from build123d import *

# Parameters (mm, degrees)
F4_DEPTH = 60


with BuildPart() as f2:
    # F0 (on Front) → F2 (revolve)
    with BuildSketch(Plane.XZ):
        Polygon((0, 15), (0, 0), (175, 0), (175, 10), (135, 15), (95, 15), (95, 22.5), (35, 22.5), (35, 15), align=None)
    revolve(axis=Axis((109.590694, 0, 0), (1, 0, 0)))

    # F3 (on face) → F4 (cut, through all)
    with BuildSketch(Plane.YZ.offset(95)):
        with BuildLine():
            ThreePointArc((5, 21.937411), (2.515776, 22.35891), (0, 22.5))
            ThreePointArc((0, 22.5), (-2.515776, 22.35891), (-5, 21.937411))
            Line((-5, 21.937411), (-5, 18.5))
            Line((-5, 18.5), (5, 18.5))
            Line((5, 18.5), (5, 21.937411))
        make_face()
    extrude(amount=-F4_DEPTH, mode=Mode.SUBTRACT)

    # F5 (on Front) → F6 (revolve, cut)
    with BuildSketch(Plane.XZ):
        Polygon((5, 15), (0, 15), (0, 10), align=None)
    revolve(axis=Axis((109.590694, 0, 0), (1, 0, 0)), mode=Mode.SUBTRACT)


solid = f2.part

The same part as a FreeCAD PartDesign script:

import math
import FreeCAD as App
import Part
import Sketcher
Q = App.Units.Quantity


def add_polygon(sketch, points):
    """Adds a closed chain of lines whose ends are joined by coincident constraints."""
    first, n = sketch.GeometryCount, len(points)
    for a, b in zip(points, points[1:] + points[:1]):
        sketch.addGeometry(Part.LineSegment(App.Vector(*a, 0), App.Vector(*b, 0)), False)
    for i in range(n):
        sketch.addConstraint(Sketcher.Constraint("Coincident", first + i, 2, first + (i + 1) % n, 1))

doc = App.newDocument("Part")
body = doc.addObject("PartDesign::Body", "Body")

# Sketch on XZ plane
sketch1 = doc.addObject("Sketcher::SketchObject", "Sketch")
body.addObject(sketch1)
sketch1.AttachmentSupport = (doc.XZ_Plane, [""])
sketch1.MapMode = "FlatFace"
add_polygon(sketch1, [(0, 15), (0, 0), (175, 0), (175, 10), (135, 15), (95, 15), (95, 22), (35, 22), (35, 15)])  # lines 0-8
sketch1.addConstraint(Sketcher.Constraint("Vertical", 0))
sketch1.addConstraint(Sketcher.Constraint("Horizontal", 1))
sketch1.addConstraint(Sketcher.Constraint("Vertical", 2))
sketch1.addConstraint(Sketcher.Constraint("Horizontal", 4))
sketch1.addConstraint(Sketcher.Constraint("Vertical", 5))
sketch1.addConstraint(Sketcher.Constraint("Horizontal", 6))
sketch1.addConstraint(Sketcher.Constraint("Vertical", 7))
sketch1.addConstraint(Sketcher.Constraint("Horizontal", 8))
sketch1.addConstraint(Sketcher.Constraint("Coincident", 0, 2, -1, 1))
sketch1.addConstraint(Sketcher.Constraint("Horizontal", 4, 2, 7, 2))
sketch1.addConstraint(Sketcher.Constraint("DistanceX", 1, 1, 1, 2, Q("175 mm")))
sketch1.addConstraint(Sketcher.Constraint("DistanceX", 4, 2, 4, 1, Q("40 mm")))
sketch1.addConstraint(Sketcher.Constraint("DistanceX", 6, 2, 6, 1, Q("60 mm")))
sketch1.addConstraint(Sketcher.Constraint("DistanceX", 8, 2, 8, 1, Q("35 mm")))
sketch1.addConstraint(Sketcher.Constraint("DistanceY", 0, 2, 0, 1, Q("15 mm")))
sketch1.addConstraint(Sketcher.Constraint("DistanceY", 2, 1, 2, 2, Q("10 mm")))
sketch1.addConstraint(Sketcher.Constraint("DistanceY", 5, 1, 5, 2, Q("7.5 mm")))
revolution = doc.addObject("PartDesign::Revolution", "Revolution")
body.addObject(revolution)
revolution.Profile = sketch1
revolution.ReferenceAxis = (sketch1, ["H_Axis"])
revolution.Angle = 360

# Sketch on YZ plane
sketch2 = doc.addObject("Sketcher::SketchObject", "Sketch001")
body.addObject(sketch2)
sketch2.AttachmentSupport = (doc.YZ_Plane, [""])
sketch2.MapMode = "FlatFace"
sketch2.AttachmentOffset = App.Placement(App.Vector(0, 0, 95), App.Rotation())
sketch2.addGeometry(Part.ArcOfCircle(Part.Circle(App.Vector(0, 0, 0), App.Vector(0, 0, 1), 22.5), math.radians(77.16), math.radians(90)), False)
sketch2.addGeometry(Part.ArcOfCircle(Part.Circle(App.Vector(0, 0, 0), App.Vector(0, 0, 1), 22.5), math.radians(90), math.radians(102.84)), False)
sketch2.addGeometry(Part.LineSegment(App.Vector(-5, 21.9, 0), App.Vector(-5, 18.5, 0)), False)
sketch2.addGeometry(Part.LineSegment(App.Vector(-5, 18.5, 0), App.Vector(5, 18.5, 0)), False)
sketch2.addGeometry(Part.LineSegment(App.Vector(5, 18.5, 0), App.Vector(5, 21.9, 0)), False)
sketch2.addConstraint(Sketcher.Constraint("Tangent", 0, 2, 1, 1))
sketch2.addConstraint(Sketcher.Constraint("Coincident", 1, 2, 2, 1))
sketch2.addConstraint(Sketcher.Constraint("Coincident", 2, 2, 3, 1))
sketch2.addConstraint(Sketcher.Constraint("Coincident", 3, 2, 4, 1))
sketch2.addConstraint(Sketcher.Constraint("Coincident", 4, 2, 0, 1))
sketch2.addConstraint(Sketcher.Constraint("Vertical", 2))
sketch2.addConstraint(Sketcher.Constraint("Horizontal", 3))
sketch2.addConstraint(Sketcher.Constraint("Vertical", 4))
sketch2.addConstraint(Sketcher.Constraint("Equal", 0, 1))
sketch2.addConstraint(Sketcher.Constraint("Symmetric", 1, 2, 4, 2, -2))
sketch2.addConstraint(Sketcher.Constraint("PointOnObject", 0, 2, -2))
sketch2.addConstraint(Sketcher.Constraint("DistanceX", 3, 1, 3, 2, Q("10 mm")))
sketch2.addConstraint(Sketcher.Constraint("DistanceY", 2, 2, 0, 2, Q("4 mm")))
sketch2.addConstraint(Sketcher.Constraint("DistanceY", -1, 1, 0, 2, Q("22.5 mm")))
sketch2.addConstraint(Sketcher.Constraint("Radius", 0, Q("22.500054 mm")))
pocket1 = doc.addObject("PartDesign::Pocket", "Pocket")
body.addObject(pocket1)
pocket1.Profile = sketch2
pocket1.Type = "ThroughAll"

# Sketch on XZ plane
sketch3 = doc.addObject("Sketcher::SketchObject", "Sketch002")
body.addObject(sketch3)
sketch3.AttachmentSupport = (doc.XZ_Plane, [""])
sketch3.MapMode = "FlatFace"
add_polygon(sketch3, [(5, 15), (0, 15), (0, 10)])  # lines 0-2
sketch3.addConstraint(Sketcher.Constraint("Horizontal", 0))
sketch3.addConstraint(Sketcher.Constraint("Vertical", 1))
sketch3.addConstraint(Sketcher.Constraint("PointOnObject", 0, 2, -2))
sketch3.addConstraint(Sketcher.Constraint("Equal", 0, 1))
sketch3.addConstraint(Sketcher.Constraint("DistanceX", 0, 2, 0, 1, Q("5 mm")))
sketch3.addConstraint(Sketcher.Constraint("DistanceY", -1, 1, 0, 2, Q("15 mm")))
groove = doc.addObject("PartDesign::Groove", "Groove")
body.addObject(groove)
groove.Profile = sketch3
groove.ReferenceAxis = (sketch3, ["H_Axis"])
groove.Angle = 360

doc.recompute()
